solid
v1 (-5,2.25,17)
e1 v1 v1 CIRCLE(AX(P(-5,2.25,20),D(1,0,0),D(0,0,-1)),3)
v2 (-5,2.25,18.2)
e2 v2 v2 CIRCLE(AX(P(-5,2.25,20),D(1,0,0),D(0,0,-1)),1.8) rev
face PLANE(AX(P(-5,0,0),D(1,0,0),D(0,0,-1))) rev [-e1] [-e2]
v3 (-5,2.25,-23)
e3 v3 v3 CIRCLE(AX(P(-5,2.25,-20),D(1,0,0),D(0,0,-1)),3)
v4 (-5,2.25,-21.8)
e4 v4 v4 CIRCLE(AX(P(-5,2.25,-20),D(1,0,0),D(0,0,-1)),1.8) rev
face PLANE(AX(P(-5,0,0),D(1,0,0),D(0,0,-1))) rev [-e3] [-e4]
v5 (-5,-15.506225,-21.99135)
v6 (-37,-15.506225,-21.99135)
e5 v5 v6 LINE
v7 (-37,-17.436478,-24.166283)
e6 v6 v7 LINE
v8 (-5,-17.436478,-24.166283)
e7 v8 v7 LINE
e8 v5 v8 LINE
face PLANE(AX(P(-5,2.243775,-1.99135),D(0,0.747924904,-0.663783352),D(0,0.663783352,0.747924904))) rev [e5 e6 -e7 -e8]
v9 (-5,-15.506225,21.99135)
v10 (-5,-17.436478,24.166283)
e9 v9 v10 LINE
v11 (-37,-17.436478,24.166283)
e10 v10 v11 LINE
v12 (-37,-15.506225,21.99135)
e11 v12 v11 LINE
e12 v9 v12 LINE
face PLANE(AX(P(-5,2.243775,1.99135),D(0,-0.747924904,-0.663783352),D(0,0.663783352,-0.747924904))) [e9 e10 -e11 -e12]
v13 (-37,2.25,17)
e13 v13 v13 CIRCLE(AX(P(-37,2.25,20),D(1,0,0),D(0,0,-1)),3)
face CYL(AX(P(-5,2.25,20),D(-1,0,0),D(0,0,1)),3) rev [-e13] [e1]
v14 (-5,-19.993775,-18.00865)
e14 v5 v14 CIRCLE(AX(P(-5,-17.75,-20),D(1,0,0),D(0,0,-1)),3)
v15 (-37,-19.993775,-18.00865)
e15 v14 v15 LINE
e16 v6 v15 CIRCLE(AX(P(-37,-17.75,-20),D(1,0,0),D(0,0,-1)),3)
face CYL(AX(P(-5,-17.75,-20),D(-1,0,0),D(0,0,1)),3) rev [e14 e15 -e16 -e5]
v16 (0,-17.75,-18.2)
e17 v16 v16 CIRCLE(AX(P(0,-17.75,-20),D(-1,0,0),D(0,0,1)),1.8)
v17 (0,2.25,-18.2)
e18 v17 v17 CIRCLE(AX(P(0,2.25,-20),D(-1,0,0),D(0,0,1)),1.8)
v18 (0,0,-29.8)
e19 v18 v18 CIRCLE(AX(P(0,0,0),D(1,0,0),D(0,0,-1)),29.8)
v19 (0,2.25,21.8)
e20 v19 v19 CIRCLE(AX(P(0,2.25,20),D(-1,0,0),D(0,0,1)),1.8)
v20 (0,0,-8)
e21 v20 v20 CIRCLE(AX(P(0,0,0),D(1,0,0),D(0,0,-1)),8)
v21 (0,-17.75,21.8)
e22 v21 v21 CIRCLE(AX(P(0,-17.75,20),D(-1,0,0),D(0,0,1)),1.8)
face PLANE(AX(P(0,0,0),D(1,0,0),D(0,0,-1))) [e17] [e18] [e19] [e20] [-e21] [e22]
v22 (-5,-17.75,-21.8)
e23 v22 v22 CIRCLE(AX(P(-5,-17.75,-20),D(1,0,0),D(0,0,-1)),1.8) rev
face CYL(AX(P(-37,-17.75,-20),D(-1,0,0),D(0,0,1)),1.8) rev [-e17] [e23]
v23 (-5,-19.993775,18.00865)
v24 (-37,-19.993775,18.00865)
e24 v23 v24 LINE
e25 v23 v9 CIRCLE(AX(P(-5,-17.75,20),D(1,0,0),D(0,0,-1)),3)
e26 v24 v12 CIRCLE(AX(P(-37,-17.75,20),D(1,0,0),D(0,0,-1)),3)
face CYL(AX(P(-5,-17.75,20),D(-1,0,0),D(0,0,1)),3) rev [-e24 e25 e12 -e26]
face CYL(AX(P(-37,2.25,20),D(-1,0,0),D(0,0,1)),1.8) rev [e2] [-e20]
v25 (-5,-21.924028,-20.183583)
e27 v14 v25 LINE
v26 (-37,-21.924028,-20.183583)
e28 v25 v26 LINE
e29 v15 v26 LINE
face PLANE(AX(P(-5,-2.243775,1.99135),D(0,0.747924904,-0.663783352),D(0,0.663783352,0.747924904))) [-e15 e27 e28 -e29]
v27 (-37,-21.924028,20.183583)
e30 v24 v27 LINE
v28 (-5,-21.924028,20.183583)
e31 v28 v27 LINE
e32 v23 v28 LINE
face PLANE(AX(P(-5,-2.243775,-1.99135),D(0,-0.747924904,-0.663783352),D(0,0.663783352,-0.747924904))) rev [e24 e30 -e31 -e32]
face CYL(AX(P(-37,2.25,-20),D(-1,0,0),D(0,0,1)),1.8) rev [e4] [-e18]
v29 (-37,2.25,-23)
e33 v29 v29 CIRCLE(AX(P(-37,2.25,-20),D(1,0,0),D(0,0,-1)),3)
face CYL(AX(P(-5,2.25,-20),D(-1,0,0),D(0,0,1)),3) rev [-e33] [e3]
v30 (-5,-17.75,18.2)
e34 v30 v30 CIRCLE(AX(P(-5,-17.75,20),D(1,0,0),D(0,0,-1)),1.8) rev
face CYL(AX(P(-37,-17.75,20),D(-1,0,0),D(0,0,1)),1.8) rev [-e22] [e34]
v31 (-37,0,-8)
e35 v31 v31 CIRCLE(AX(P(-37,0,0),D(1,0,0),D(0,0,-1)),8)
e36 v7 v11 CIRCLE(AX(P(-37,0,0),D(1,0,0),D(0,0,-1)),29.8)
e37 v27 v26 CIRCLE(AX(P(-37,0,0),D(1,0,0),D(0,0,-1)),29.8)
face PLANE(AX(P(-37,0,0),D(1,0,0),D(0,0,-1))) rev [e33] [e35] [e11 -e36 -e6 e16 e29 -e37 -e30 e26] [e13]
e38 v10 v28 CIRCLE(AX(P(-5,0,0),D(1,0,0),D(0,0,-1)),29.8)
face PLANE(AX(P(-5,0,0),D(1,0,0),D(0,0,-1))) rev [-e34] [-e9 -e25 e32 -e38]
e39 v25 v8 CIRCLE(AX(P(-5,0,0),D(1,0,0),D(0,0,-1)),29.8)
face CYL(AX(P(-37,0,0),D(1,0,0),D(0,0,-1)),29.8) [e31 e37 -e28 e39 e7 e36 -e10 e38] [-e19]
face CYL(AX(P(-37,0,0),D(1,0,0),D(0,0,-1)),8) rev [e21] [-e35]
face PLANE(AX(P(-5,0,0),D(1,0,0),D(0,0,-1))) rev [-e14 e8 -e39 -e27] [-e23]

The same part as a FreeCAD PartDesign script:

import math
import FreeCAD as App
import Part
import Sketcher
Q = App.Units.Quantity

doc = App.newDocument("Part")
params = doc.addObject("Spreadsheet::Sheet", "Params")
for row, (alias, value) in enumerate([
    ("sketch1_diameter", "16 mm"),
    ("sketch1_radius", "29.8 mm"),
    ("pad1_length", "37 mm"),
    ("sketch2_diameter", "3.6 mm"),
    ("hole_diameter", "3.6 mm"),
    ("sketch3_diameter", "6 mm"),
    ("sketch3_radius", "29.8 mm"),
    ("pocket1_length", "32 mm"),
], start=1):
    params.set(f"A{row}", alias)
    params.set(f"B{row}", "=" + value)
    params.setAlias(f"B{row}", alias)

body = doc.addObject("PartDesign::Body", "Body")

sketch1 = doc.addObject("Sketcher::SketchObject", "Sketch")
body.addObject(sketch1)
sketch1.AttachmentSupport = (doc.YZ_Plane, [""])
sketch1.MapMode = "FlatFace"
sketch1.addGeometry(Part.ArcOfCircle(Part.Circle(App.Vector(0, 0, 0), App.Vector(0, 0, 1), 30), math.radians(-90), math.radians(126)), False)
sketch1.addGeometry(Part.ArcOfCircle(Part.Circle(App.Vector(0, 0, 0), App.Vector(0, 0, 1), 30), math.radians(125.81), math.radians(137.37)), False)
sketch1.addGeometry(Part.ArcOfCircle(Part.Circle(App.Vector(0, 0, 0), App.Vector(0, 0, 1), 30), math.radians(137), math.radians(223)), False)
sketch1.addGeometry(Part.ArcOfCircle(Part.Circle(App.Vector(0, 0, 0), App.Vector(0, 0, 1), 30), math.radians(-137.37), math.radians(-125.81)), False)
sketch1.addGeometry(Part.ArcOfCircle(Part.Circle(App.Vector(0, 0, 0), App.Vector(0, 0, 1), 30), math.radians(-126), math.radians(-90)), False)
sketch1.addGeometry(Part.Circle(App.Vector(0, 0, 0), App.Vector(0, 0, 1), 8), False)
sketch1.addConstraint(Sketcher.Constraint("Tangent", 0, 2, 1, 1))
sketch1.addConstraint(Sketcher.Constraint("Tangent", 1, 2, 2, 1))
sketch1.addConstraint(Sketcher.Constraint("Tangent", 2, 2, 3, 1))
sketch1.addConstraint(Sketcher.Constraint("Tangent", 3, 2, 4, 1))
sketch1.addConstraint(Sketcher.Constraint("Tangent", 4, 2, 0, 1))
sketch1.addConstraint(Sketcher.Constraint("Coincident", 0, 3, -1, 1))
sketch1.addConstraint(Sketcher.Constraint("Coincident", 2, 3, -1, 1))
sketch1.addConstraint(Sketcher.Constraint("Coincident", 5, 3, -1, 1))
sketch1.addConstraint(Sketcher.Constraint("PointOnObject", 4, 2, -2))
sketch1.addConstraint(Sketcher.Constraint("Vertical", 1, 2, 2, 2))
sketch1.addConstraint(Sketcher.Constraint("Vertical", 0, 2, 3, 2))
sketch1.addConstraint(Sketcher.Constraint("Diameter", 5, Q("16 mm")))
sketch1.addConstraint(Sketcher.Constraint("Radius", 0, Q("29.8 mm")))
sketch1.addConstraint(Sketcher.Constraint("DistanceY", 1, 2, 0, 2, Q("3.9827 mm")))
sketch1.addConstraint(Sketcher.Constraint("DistanceX", 0, 2, -1, 1, Q("17.436478 mm")))
sketch1.setExpression("Constraints[11]", "Params.sketch1_diameter")
sketch1.setExpression("Constraints[12]", "Params.sketch1_radius")
pad1 = doc.addObject("PartDesign::Pad", "Pad")
body.addObject(pad1)
pad1.Profile = sketch1
pad1.setExpression("Length", "Params.pad1_length")
pad1.Reversed = True

sketch2 = doc.addObject("Sketcher::SketchObject", "Sketch001")
body.addObject(sketch2)
sketch2.AttachmentSupport = (doc.YZ_Plane, [""])
sketch2.MapMode = "FlatFace"
sketch2.AttachmentOffset = App.Placement(App.Vector(0, 0, -37), App.Rotation())
sketch2.addGeometry(Part.Circle(App.Vector(2.2, -20, 0), App.Vector(0, 0, 1), 1.8), False)
sketch2.addGeometry(Part.Circle(App.Vector(2.2, 20, 0), App.Vector(0, 0, 1), 1.8), False)
sketch2.addGeometry(Part.Circle(App.Vector(-17.8, 20, 0), App.Vector(0, 0, 1), 1.8), False)
sketch2.addGeometry(Part.Circle(App.Vector(-17.8, -20, 0), App.Vector(0, 0, 1), 1.8), False)
sketch2.addConstraint(Sketcher.Constraint("Equal", 0, 1))
sketch2.addConstraint(Sketcher.Constraint("Equal", 1, 2))
sketch2.addConstraint(Sketcher.Constraint("Equal", 2, 3))
sketch2.addConstraint(Sketcher.Constraint("Symmetric", 0, 3, 1, 3, -1))
sketch2.addConstraint(Sketcher.Constraint("Symmetric", 2, 3, 3, 3, -1))
sketch2.addConstraint(Sketcher.Constraint("Horizontal", 1, 3, 2, 3))
sketch2.addConstraint(Sketcher.Constraint("Diameter", 0, Q("3.6 mm")))
sketch2.addConstraint(Sketcher.Constraint("DistanceY", 0, 3, -1, 1, Q("20 mm")))
sketch2.addConstraint(Sketcher.Constraint("DistanceX", 2, 3, 1, 3, Q("20 mm")))
sketch2.addConstraint(Sketcher.Constraint("DistanceX", -1, 1, 0, 3, Q("2.25 mm")))
sketch2.setExpression("Constraints[6]", "Params.sketch2_diameter")
doc.recompute()
hole = doc.addObject("PartDesign::Hole", "Hole")
body.addObject(hole)
hole.Profile = sketch2
hole.ThreadType = "None"
hole.setExpression("Diameter", "Params.hole_diameter")
hole.DepthType = "ThroughAll"
hole.Reversed = True

sketch3 = doc.addObject("Sketcher::SketchObject", "Sketch002")
body.addObject(sketch3)
sketch3.AttachmentSupport = (doc.YZ_Plane, [""])
sketch3.MapMode = "FlatFace"
sketch3.AttachmentOffset = App.Placement(App.Vector(0, 0, -37), App.Rotation())
sketch3.addGeometry(Part.Circle(App.Vector(2.2, -20, 0), App.Vector(0, 0, 1), 3), False)
sketch3.addGeometry(Part.Circle(App.Vector(2.2, 20, 0), App.Vector(0, 0, 1), 3), False)
sketch3.addGeometry(Part.ArcOfCircle(Part.Circle(App.Vector(-17.8, 20, 0), App.Vector(0, 0, 1), 3), math.radians(-138), math.radians(42)), False)
sketch3.addGeometry(Part.LineSegment(App.Vector(-15.5, 22, 0), App.Vector(-17.4, 24.2, 0)), False)
sketch3.addGeometry(Part.ArcOfCircle(Part.Circle(App.Vector(0, 0, 0), App.Vector(0, 0, 1), 29.8), math.radians(125.81), math.radians(137.37)), False)
sketch3.addGeometry(Part.LineSegment(App.Vector(-21.9, 20.2, 0), App.Vector(-20, 18, 0)), False)
sketch3.addGeometry(Part.ArcOfCircle(Part.Circle(App.Vector(0, 0, 0), App.Vector(0, 0, 1), 29.8), math.radians(-137.37), math.radians(-125.81)), False)
sketch3.addGeometry(Part.LineSegment(App.Vector(-17.4, -24.2, 0), App.Vector(-15.5, -22, 0)), False)
sketch3.addGeometry(Part.ArcOfCircle(Part.Circle(App.Vector(-17.8, -20, 0), App.Vector(0, 0, 1), 3), math.radians(-42), math.radians(138)), False)
sketch3.addGeometry(Part.LineSegment(App.Vector(-20, -18, 0), App.Vector(-21.9, -20.2, 0)), False)
sketch3.addConstraint(Sketcher.Constraint("Tangent", 2, 2, 3, 1))
sketch3.addConstraint(Sketcher.Constraint("Coincident", 3, 2, 4, 1))
sketch3.addConstraint(Sketcher.Constraint("Coincident", 4, 2, 5, 1))
sketch3.addConstraint(Sketcher.Constraint("Tangent", 5, 2, 2, 1))
sketch3.addConstraint(Sketcher.Constraint("Coincident", 6, 2, 7, 1))
sketch3.addConstraint(Sketcher.Constraint("Tangent", 7, 2, 8, 1))
sketch3.addConstraint(Sketcher.Constraint("Tangent", 8, 2, 9, 1))
sketch3.addConstraint(Sketcher.Constraint("Coincident", 9, 2, 6, 1))
sketch3.addConstraint(Sketcher.Constraint("Coincident", 4, 3, -1, 1))
sketch3.addConstraint(Sketcher.Constraint("Coincident", 6, 3, -1, 1))
sketch3.addConstraint(Sketcher.Constraint("Equal", 0, 1))
sketch3.addConstraint(Sketcher.Constraint("Equal", 1, 2))
sketch3.addConstraint(Sketcher.Constraint("Equal", 4, 6))
sketch3.addConstraint(Sketcher.Constraint("Equal", 2, 8))
sketch3.addConstraint(Sketcher.Constraint("Symmetric", 0, 3, 1, 3, -1))
sketch3.addConstraint(Sketcher.Constraint("Symmetric", 2, 3, 8, 3, -1))
sketch3.addConstraint(Sketcher.Constraint("Parallel", 3, 5))
sketch3.addConstraint(Sketcher.Constraint("Parallel", 7, 9))
sketch3.addConstraint(Sketcher.Constraint("Horizontal", 1, 3, 2, 3))
sketch3.addConstraint(Sketcher.Constraint("Vertical", 3, 2, 6, 2))
sketch3.addConstraint(Sketcher.Constraint("Equal", 3, 5))
sketch3.addConstraint(Sketcher.Constraint("Diameter", 0, Q("6 mm")))
sketch3.addConstraint(Sketcher.Constraint("Radius", 4, Q("29.8 mm")))
sketch3.addConstraint(Sketcher.Constraint("DistanceY", 0, 3, -1, 1, Q("20 mm")))
sketch3.addConstraint(Sketcher.Constraint("DistanceX", 2, 3, 1, 3, Q("20 mm")))
sketch3.addConstraint(Sketcher.Constraint("DistanceX", -1, 1, 0, 3, Q("2.25 mm")))
sketch3.setExpression("Constraints[21]", "Params.sketch3_diameter")
sketch3.setExpression("Constraints[22]", "Params.sketch3_radius")
pocket1 = doc.addObject("PartDesign::Pocket", "Pocket")
body.addObject(pocket1)
pocket1.Profile = sketch3
pocket1.setExpression("Length", "Params.pocket1_length")
pocket1.Reversed = True

doc.recompute()
